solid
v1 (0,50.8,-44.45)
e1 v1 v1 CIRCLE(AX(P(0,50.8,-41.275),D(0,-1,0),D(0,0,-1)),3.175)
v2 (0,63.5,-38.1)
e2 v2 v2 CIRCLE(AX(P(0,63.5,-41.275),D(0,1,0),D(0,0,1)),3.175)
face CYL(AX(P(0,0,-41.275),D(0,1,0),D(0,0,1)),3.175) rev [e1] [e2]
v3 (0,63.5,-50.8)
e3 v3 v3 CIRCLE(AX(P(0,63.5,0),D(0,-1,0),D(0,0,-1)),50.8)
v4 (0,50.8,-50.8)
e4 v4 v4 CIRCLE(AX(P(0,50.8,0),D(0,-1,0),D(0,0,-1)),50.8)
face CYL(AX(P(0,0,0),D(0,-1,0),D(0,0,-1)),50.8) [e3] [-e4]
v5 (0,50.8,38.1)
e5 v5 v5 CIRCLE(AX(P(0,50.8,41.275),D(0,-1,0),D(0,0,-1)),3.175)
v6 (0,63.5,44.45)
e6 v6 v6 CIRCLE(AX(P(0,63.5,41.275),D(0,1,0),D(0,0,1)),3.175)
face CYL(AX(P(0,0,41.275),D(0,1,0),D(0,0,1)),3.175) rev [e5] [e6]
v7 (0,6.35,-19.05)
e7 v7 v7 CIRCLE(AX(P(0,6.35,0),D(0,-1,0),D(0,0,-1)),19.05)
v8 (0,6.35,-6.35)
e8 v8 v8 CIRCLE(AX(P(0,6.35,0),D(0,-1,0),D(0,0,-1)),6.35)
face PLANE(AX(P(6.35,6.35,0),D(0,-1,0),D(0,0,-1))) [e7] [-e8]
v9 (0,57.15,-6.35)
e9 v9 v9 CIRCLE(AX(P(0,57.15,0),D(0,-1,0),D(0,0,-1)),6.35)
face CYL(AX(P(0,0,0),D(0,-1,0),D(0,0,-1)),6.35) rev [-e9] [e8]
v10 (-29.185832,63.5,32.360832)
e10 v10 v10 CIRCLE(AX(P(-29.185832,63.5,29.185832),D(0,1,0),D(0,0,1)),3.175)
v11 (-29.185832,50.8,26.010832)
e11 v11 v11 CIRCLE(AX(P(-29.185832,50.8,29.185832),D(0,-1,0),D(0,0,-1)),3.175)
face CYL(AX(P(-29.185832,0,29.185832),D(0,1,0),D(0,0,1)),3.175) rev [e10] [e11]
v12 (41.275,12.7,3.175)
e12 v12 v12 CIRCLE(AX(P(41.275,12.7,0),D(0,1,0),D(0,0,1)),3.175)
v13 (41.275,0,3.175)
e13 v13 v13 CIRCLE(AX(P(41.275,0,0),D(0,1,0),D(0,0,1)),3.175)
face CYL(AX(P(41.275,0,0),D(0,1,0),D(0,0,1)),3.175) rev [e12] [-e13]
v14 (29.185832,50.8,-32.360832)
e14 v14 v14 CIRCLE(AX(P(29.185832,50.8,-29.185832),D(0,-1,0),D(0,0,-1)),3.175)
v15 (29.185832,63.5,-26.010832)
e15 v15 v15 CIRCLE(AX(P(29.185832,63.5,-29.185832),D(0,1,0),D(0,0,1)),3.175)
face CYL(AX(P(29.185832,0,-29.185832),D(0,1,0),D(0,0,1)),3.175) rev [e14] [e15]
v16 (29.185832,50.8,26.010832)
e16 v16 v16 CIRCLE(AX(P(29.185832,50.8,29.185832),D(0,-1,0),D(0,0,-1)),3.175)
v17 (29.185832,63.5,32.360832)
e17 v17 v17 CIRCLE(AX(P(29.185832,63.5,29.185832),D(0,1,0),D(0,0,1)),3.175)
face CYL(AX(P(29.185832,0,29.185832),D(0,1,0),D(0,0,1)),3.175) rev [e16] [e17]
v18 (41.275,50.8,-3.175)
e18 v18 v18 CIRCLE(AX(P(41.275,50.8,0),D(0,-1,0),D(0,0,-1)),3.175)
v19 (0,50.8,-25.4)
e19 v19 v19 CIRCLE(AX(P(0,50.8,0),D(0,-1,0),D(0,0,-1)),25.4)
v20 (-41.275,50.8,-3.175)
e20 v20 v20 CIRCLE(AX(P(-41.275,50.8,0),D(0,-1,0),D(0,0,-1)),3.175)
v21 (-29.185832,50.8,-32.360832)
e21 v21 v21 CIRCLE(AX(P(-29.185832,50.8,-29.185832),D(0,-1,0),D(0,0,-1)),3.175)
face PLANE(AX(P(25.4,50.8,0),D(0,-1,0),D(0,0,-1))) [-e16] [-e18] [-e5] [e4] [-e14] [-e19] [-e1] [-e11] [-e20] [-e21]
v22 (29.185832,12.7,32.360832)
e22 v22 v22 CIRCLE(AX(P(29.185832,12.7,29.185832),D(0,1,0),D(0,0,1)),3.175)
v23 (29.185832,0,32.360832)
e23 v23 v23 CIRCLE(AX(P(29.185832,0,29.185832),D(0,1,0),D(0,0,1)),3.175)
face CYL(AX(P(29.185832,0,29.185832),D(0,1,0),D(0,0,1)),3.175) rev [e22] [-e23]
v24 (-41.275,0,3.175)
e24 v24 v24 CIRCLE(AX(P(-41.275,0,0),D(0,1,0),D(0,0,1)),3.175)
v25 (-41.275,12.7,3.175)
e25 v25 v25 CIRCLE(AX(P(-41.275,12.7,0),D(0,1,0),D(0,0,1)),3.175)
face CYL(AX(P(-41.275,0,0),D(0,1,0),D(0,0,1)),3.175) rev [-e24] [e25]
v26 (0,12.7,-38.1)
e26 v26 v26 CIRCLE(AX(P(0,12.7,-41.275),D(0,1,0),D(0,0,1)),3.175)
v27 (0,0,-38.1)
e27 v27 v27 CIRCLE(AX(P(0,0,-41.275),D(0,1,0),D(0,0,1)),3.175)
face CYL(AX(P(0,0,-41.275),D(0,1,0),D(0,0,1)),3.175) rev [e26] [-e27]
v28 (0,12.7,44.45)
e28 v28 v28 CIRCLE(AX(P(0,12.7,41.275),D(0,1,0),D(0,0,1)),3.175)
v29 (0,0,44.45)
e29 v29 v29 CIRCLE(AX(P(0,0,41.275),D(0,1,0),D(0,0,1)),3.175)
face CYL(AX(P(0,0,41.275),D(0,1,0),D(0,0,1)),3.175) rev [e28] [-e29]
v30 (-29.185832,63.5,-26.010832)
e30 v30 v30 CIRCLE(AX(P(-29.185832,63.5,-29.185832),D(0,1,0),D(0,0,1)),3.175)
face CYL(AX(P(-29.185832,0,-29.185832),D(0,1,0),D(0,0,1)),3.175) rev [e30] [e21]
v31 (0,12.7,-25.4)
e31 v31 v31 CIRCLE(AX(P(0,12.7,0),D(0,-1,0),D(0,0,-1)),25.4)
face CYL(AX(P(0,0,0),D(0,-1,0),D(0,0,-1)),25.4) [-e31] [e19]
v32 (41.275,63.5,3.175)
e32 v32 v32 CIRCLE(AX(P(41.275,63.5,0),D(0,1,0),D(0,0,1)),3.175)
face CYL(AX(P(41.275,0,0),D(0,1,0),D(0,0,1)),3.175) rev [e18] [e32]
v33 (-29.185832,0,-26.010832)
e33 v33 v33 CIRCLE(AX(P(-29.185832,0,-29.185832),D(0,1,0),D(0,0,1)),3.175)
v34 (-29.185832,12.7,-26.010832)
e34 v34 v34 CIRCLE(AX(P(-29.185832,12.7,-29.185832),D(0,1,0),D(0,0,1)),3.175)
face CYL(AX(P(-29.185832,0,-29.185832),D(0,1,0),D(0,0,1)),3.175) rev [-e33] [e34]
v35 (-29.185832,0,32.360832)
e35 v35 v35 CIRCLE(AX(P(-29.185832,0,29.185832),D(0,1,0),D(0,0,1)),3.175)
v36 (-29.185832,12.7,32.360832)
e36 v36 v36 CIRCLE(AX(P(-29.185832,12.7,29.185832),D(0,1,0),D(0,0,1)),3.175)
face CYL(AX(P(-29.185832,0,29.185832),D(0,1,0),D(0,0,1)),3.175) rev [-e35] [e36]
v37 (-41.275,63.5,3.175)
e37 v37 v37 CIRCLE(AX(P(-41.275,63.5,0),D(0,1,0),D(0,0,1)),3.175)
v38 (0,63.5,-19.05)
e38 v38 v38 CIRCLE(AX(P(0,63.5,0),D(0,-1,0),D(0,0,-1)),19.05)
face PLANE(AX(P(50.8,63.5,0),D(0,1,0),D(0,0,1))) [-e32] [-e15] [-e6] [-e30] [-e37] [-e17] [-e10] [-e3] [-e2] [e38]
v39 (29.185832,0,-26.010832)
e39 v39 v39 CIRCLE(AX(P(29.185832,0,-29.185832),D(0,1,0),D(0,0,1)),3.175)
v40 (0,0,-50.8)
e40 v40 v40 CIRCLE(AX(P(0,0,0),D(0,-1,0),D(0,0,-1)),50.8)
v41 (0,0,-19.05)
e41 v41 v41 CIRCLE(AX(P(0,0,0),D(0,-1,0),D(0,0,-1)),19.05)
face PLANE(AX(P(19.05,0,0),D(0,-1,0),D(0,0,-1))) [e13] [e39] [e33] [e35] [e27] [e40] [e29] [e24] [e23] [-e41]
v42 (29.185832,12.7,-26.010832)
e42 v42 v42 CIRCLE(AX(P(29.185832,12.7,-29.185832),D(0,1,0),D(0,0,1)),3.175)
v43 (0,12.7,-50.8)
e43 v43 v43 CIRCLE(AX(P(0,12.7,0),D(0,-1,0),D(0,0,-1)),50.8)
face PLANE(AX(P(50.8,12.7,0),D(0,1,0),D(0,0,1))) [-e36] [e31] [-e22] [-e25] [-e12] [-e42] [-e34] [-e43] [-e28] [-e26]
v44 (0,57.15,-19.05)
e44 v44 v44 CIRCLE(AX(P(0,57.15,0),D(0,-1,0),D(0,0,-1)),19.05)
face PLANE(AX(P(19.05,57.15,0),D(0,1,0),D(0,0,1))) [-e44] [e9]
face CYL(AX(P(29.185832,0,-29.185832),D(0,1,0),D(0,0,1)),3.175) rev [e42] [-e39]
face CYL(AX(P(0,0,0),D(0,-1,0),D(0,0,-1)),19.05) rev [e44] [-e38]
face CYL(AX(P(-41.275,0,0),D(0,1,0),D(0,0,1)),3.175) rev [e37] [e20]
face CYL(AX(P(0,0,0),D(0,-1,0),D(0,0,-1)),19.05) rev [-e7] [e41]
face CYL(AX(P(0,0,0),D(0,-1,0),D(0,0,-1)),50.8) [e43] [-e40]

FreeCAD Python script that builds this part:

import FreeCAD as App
import Part
import Sketcher

V = App.Vector
Q = App.Units.Quantity


def add_polygon(sketch, points):
    """Adds a closed chain of lines whose ends are joined by coincident constraints."""
    first, n = sketch.GeometryCount, len(points)
    for a, b in zip(points, points[1:] + points[:1]):
        sketch.addGeometry(Part.LineSegment(App.Vector(*a, 0), App.Vector(*b, 0)), False)
    for i in range(n):
        sketch.addConstraint(Sketcher.Constraint("Coincident", first + i, 2, first + (i + 1) % n, 1))

doc = App.newDocument("Part")
body = doc.addObject("PartDesign::Body", "Body")

# Sketch on XY plane
sketch1 = doc.addObject("Sketcher::SketchObject", "Sketch")
body.addObject(sketch1)
sketch1.AttachmentSupport = (doc.XY_Plane, [""])
sketch1.MapMode = "FlatFace"
add_polygon(sketch1, [(19.05, 0), (50.8, 0), (50.8, 12.7), (25.4, 12.7), (25.4, 50.8), (50.8, 50.8), (50.8, 63.5), (19.05, 63.5), (19.05, 57.15), (6.35, 57.15), (6.35, 6.35), (19.05, 6.35)])  # lines 0-11
sketch1.addConstraint(Sketcher.Constraint("Horizontal", 0))
sketch1.addConstraint(Sketcher.Constraint("Vertical", 1))
sketch1.addConstraint(Sketcher.Constraint("Horizontal", 2))
sketch1.addConstraint(Sketcher.Constraint("Vertical", 3))
sketch1.addConstraint(Sketcher.Constraint("Horizontal", 4))
sketch1.addConstraint(Sketcher.Constraint("Vertical", 5))
sketch1.addConstraint(Sketcher.Constraint("Horizontal", 6))
sketch1.addConstraint(Sketcher.Constraint("Vertical", 7))
sketch1.addConstraint(Sketcher.Constraint("Horizontal", 8))
sketch1.addConstraint(Sketcher.Constraint("Vertical", 9))
sketch1.addConstraint(Sketcher.Constraint("Horizontal", 10))
sketch1.addConstraint(Sketcher.Constraint("Vertical", 11))
sketch1.addConstraint(Sketcher.Constraint("PointOnObject", 0, 2, -1))
sketch1.addConstraint(Sketcher.Constraint("Vertical", 1, 2, 4, 2))
sketch1.addConstraint(Sketcher.Constraint("Vertical", 7, 2, 10, 2))
sketch1.addConstraint(Sketcher.Constraint("Equal", 10, 1))
sketch1.addConstraint(Sketcher.Constraint("Equal", 1, 5))
sketch1.addConstraint(Sketcher.Constraint("Equal", 7, 11))
sketch1.addConstraint(Sketcher.Constraint("DistanceX", 2, 2, 2, 1, Q("1 in")))
sketch1.addConstraint(Sketcher.Constraint("DistanceY", 9, 2, 9, 1, Q("2 in")))
sketch1.addConstraint(Sketcher.Constraint("DistanceX", 8, 2, 8, 1, Q("0.5 in")))
sketch1.addConstraint(Sketcher.Constraint("DistanceY", 3, 1, 3, 2, Q("1.5 in")))
sketch1.addConstraint(Sketcher.Constraint("DistanceX", -1, 1, 0, 2, Q("2 in")))
sketch1.addConstraint(Sketcher.Constraint("DistanceX", 0, 1, 0, 2, Q("1.25 in")))
revolution = doc.addObject("PartDesign::Revolution", "Revolution")
body.addObject(revolution)
revolution.Profile = sketch1
revolution.ReferenceAxis = (sketch1, ["V_Axis"])
revolution.Angle = 360

# Sketch on XZ plane
sketch2 = doc.addObject("Sketcher::SketchObject", "Sketch001")
body.addObject(sketch2)
sketch2.AttachmentSupport = (doc.XZ_Plane, [""])
sketch2.MapMode = "FlatFace"
sketch2.AttachmentOffset = App.Placement(V(0, 0, -2.5 * 25.4), App.Rotation())
sketch2.addGeometry(Part.Circle(V(41.275, 0, 0), V(0, 0, 1), 3.175), False)
sketch2.addGeometry(Part.Circle(V(29.185832, 29.185832, 0), V(0, 0, 1), 3.175), False)
sketch2.addGeometry(Part.Circle(V(0, 41.275, 0), V(0, 0, 1), 3.175), False)
sketch2.addGeometry(Part.Circle(V(-29.185832, 29.185832, 0), V(0, 0, 1), 3.175), False)
sketch2.addGeometry(Part.Circle(V(-41.275, 0, 0), V(0, 0, 1), 3.175), False)
sketch2.addGeometry(Part.Circle(V(-29.185832, -29.185832, 0), V(0, 0, 1), 3.175), False)
sketch2.addGeometry(Part.Circle(V(0, -41.275, 0), V(0, 0, 1), 3.175), False)
sketch2.addGeometry(Part.Circle(V(29.185832, -29.185832, 0), V(0, 0, 1), 3.175), False)
sketch2.addConstraint(Sketcher.Constraint("Equal", 0, 1))
sketch2.addConstraint(Sketcher.Constraint("Equal", 1, 2))
sketch2.addConstraint(Sketcher.Constraint("Equal", 2, 3))
sketch2.addConstraint(Sketcher.Constraint("Equal", 3, 4))
sketch2.addConstraint(Sketcher.Constraint("Equal", 4, 5))
sketch2.addConstraint(Sketcher.Constraint("Equal", 5, 6))
sketch2.addConstraint(Sketcher.Constraint("Equal", 6, 7))
sketch2.addConstraint(Sketcher.Constraint("Symmetric", 0, 3, 4, 3, -1, 1))
sketch2.addConstraint(Sketcher.Constraint("Symmetric", 1, 3, 5, 3, -1, 1))
sketch2.addConstraint(Sketcher.Constraint("Symmetric", 2, 3, 6, 3, -1, 1))
sketch2.addConstraint(Sketcher.Constraint("Symmetric", 3, 3, 7, 3, -1, 1))
sketch2.addConstraint(Sketcher.Constraint("Symmetric", 1, 3, 3, 3, -2))
sketch2.addConstraint(Sketcher.Constraint("PointOnObject", 0, 3, -1))
sketch2.addConstraint(Sketcher.Constraint("PointOnObject", 2, 3, -2))
sketch2.addConstraint(Sketcher.Constraint("Diameter", 0, Q("0.25 in")))
sketch2.addConstraint(Sketcher.Constraint("DistanceX", 4, 3, 0, 3, Q("3.25 in")))
sketch2.addConstraint(Sketcher.Constraint("DistanceY", -1, 1, 2, 3, Q("1.625 in")))
sketch2.addConstraint(Sketcher.Constraint("DistanceX", -1, 1, 1, 3, 29.185832))
sketch2.addConstraint(Sketcher.Constraint("DistanceY", -1, 1, 1, 3, 29.185832))
pocket1 = doc.addObject("PartDesign::Pocket", "Pocket")
body.addObject(pocket1)
pocket1.Profile = sketch2
pocket1.Type = "ThroughAll"
pocket1.Reversed = True

doc.recompute()
